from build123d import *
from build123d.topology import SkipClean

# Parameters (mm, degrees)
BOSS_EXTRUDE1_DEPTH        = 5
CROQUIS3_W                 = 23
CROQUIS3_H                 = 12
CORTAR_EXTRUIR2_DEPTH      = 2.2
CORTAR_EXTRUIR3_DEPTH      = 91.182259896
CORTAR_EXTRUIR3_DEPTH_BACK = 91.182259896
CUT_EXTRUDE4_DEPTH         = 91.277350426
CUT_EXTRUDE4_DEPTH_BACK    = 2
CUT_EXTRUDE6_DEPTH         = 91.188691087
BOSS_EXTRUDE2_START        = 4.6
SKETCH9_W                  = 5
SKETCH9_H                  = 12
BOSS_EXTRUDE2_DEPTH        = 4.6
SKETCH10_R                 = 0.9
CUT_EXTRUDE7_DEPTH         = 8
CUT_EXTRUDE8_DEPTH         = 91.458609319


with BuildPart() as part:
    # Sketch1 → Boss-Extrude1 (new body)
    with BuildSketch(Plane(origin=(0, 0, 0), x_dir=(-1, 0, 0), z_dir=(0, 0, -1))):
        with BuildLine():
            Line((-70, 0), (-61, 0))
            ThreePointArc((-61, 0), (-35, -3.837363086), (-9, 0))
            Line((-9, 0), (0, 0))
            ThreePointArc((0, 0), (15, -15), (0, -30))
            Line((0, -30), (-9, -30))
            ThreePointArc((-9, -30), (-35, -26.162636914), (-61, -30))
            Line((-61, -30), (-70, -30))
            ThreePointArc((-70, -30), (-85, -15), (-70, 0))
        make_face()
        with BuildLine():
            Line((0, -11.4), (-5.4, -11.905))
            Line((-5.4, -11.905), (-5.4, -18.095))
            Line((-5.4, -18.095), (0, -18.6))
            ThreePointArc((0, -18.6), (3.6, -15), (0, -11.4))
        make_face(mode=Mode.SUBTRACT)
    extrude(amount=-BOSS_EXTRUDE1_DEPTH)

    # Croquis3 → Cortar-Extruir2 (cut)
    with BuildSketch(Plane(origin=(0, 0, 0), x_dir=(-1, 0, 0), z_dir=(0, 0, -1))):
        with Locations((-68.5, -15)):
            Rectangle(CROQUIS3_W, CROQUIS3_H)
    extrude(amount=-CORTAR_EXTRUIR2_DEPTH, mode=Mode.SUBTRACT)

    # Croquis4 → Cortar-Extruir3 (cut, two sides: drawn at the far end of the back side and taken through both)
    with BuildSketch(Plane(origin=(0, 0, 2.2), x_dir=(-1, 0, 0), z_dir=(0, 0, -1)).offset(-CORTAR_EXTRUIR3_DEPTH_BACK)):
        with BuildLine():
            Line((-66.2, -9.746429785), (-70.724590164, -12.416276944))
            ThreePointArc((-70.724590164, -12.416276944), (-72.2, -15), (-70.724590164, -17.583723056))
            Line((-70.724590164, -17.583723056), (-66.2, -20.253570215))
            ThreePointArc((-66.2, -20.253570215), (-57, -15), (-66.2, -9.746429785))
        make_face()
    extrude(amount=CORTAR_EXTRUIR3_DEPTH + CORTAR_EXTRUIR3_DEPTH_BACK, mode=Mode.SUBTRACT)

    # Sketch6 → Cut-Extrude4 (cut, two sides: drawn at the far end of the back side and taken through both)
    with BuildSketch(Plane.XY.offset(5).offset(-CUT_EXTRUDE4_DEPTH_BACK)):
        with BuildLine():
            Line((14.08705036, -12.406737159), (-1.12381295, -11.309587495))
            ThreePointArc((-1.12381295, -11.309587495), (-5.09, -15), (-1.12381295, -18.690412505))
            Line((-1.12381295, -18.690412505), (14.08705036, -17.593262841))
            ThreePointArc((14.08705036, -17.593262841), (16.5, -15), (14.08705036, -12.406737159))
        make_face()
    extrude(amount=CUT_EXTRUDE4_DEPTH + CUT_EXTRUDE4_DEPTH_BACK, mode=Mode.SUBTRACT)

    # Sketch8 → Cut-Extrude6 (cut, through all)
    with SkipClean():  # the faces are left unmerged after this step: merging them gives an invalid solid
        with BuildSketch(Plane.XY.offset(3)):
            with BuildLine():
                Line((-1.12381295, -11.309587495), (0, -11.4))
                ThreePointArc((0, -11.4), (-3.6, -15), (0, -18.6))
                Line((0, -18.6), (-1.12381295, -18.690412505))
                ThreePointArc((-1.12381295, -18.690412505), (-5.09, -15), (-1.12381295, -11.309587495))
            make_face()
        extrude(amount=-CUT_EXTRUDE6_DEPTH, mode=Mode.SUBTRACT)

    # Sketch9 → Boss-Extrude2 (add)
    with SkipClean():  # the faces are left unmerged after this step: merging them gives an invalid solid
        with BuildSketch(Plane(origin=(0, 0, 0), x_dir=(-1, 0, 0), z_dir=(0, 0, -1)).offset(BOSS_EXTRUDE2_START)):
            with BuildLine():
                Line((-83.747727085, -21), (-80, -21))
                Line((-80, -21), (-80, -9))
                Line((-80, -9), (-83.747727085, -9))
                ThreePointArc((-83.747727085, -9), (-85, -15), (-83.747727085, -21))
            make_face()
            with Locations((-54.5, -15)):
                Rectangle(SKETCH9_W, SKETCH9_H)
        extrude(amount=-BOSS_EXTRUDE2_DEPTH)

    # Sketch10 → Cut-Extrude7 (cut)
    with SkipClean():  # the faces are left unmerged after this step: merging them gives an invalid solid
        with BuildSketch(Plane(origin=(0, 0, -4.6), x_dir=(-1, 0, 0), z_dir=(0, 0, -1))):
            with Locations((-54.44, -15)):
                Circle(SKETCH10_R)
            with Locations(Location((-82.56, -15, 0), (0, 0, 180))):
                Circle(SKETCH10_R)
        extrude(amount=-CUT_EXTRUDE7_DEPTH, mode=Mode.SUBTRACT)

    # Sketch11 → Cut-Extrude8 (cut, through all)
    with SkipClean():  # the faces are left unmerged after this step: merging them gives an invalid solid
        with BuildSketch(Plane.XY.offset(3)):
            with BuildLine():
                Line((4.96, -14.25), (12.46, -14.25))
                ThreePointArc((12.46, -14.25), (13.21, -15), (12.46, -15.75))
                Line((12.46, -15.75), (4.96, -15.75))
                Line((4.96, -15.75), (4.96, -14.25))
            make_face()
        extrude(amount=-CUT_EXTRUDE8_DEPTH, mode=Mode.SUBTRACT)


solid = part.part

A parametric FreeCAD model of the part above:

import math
import FreeCAD as App
import Part
import Sketcher
from FreeCAD import Vector
Q = App.Units.Quantity

doc = App.newDocument("Part")
body = doc.addObject("PartDesign::Body", "Body")

sketch1 = doc.addObject("Sketcher::SketchObject", "Sketch")
body.addObject(sketch1)
sketch1.AttachmentSupport = (doc.XY_Plane, [""])
sketch1.MapMode = "FlatFace"
sketch1.addGeometry(Part.LineSegment(Vector(61, 0, 0), Vector(70, 0, 0)), False)
sketch1.addGeometry(Part.ArcOfCircle(Part.Circle(Vector(70, -15, 0), Vector(0, 0, 1), 15), math.radians(-90), math.radians(90)), False)
sketch1.addGeometry(Part.LineSegment(Vector(70, -30, 0), Vector(61, -30, 0)), False)
sketch1.addGeometry(Part.ArcOfCircle(Part.Circle(Vector(35, -116.162637, 0), Vector(0, 0, 1), 90), math.radians(73.208553), math.radians(106.791447)), False)
sketch1.addGeometry(Part.LineSegment(Vector(9, -30, 0), Vector(0, -30, 0)), False)
sketch1.addGeometry(Part.ArcOfCircle(Part.Circle(Vector(0, -15, 0), Vector(0, 0, 1), 15), math.radians(90), math.radians(270)), False)
sketch1.addGeometry(Part.LineSegment(Vector(0, 0, 0), Vector(9, 0, 0)), False)
sketch1.addGeometry(Part.ArcOfCircle(Part.Circle(Vector(35, 86.162637, 0), Vector(0, 0, 1), 90), math.radians(-106.791447), math.radians(-73.208553)), False)
sketch1.addGeometry(Part.ArcOfCircle(Part.Circle(Vector(0, -15, 0), Vector(0, 0, 1), 3.6), math.radians(90), math.radians(270)), False)
sketch1.addGeometry(Part.LineSegment(Vector(0, -18.6, 0), Vector(5.4, -18.095, 0)), False)
sketch1.addGeometry(Part.LineSegment(Vector(5.4, -18.095, 0), Vector(5.4, -11.905, 0)), False)
sketch1.addGeometry(Part.LineSegment(Vector(5.4, -11.905, 0), Vector(0, -11.4, 0)), False)
sketch1.addConstraint(Sketcher.Constraint("Tangent", 0, 2, 1, 2))
sketch1.addConstraint(Sketcher.Constraint("Tangent", 1, 1, 2, 1))
sketch1.addConstraint(Sketcher.Constraint("Coincident", 2, 2, 3, 1))
sketch1.addConstraint(Sketcher.Constraint("Coincident", 3, 2, 4, 1))
sketch1.addConstraint(Sketcher.Constraint("Tangent", 4, 2, 5, 2))
sketch1.addConstraint(Sketcher.Constraint("Tangent", 5, 1, 6, 1))
sketch1.addConstraint(Sketcher.Constraint("Coincident", 6, 2, 7, 1))
sketch1.addConstraint(Sketcher.Constraint("Coincident", 7, 2, 0, 1))
sketch1.addConstraint(Sketcher.Constraint("Coincident", 8, 2, 9, 1))
sketch1.addConstraint(Sketcher.Constraint("Coincident", 9, 2, 10, 1))
sketch1.addConstraint(Sketcher.Constraint("Coincident", 10, 2, 11, 1))
sketch1.addConstraint(Sketcher.Constraint("Coincident", 11, 2, 8, 1))
sketch1.addConstraint(Sketcher.Constraint("Horizontal", 0))
sketch1.addConstraint(Sketcher.Constraint("Horizontal", 2))
sketch1.addConstraint(Sketcher.Constraint("Horizontal", 4))
sketch1.addConstraint(Sketcher.Constraint("Horizontal", 6))
sketch1.addConstraint(Sketcher.Constraint("Vertical", 10))
sketch1.addConstraint(Sketcher.Constraint("Coincident", 5, 1, -1, 1))
sketch1.addConstraint(Sketcher.Constraint("Coincident", 8, 3, 5, 3))
sketch1.addConstraint(Sketcher.Constraint("Equal", 1, 5))
sketch1.addConstraint(Sketcher.Constraint("Equal", 3, 7))
sketch1.addConstraint(Sketcher.Constraint("PointOnObject", 0, 2, -1))
sketch1.addConstraint(Sketcher.Constraint("PointOnObject", 8, 2, -2))
sketch1.addConstraint(Sketcher.Constraint("PointOnObject", 11, 2, -2))
sketch1.addConstraint(Sketcher.Constraint("Vertical", 3, 3, 7, 3))
sketch1.addConstraint(Sketcher.Constraint("Vertical", 3, 2, 6, 2))
sketch1.addConstraint(Sketcher.Constraint("Equal", 2, 4))
sketch1.addConstraint(Sketcher.Constraint("Equal", 9, 11))
sketch1.addConstraint(Sketcher.Constraint("Radius", 1, Q("15 mm")))
sketch1.addConstraint(Sketcher.Constraint("Radius", 3, Q("90 mm")))
sketch1.addConstraint(Sketcher.Constraint("Radius", 8, Q("3.6 mm")))
sketch1.addConstraint(Sketcher.Constraint("DistanceX", 0, 1, 0, 2, Q("9 mm")))
sketch1.addConstraint(Sketcher.Constraint("DistanceX", -1, 1, 1, 3, Q("70 mm")))
sketch1.addConstraint(Sketcher.Constraint("DistanceY", 10, 1, 10, 2, Q("6.19 mm")))
sketch1.addConstraint(Sketcher.Constraint("DistanceX", -1, 1, 9, 2, Q("5.4 mm")))
pad1 = doc.addObject("PartDesign::Pad", "Pad")
body.addObject(pad1)
pad1.Profile = sketch1
pad1.Length = 5

sketch2 = doc.addObject("Sketcher::SketchObject", "Sketch001")
body.addObject(sketch2)
sketch2.AttachmentSupport = (doc.XY_Plane, [""])
sketch2.MapMode = "FlatFace"
sketch2.addGeometry(Part.LineSegment(Vector(80, -9, 0), Vector(80, -21, 0)), False)
sketch2.addGeometry(Part.LineSegment(Vector(80, -21, 0), Vector(57, -21, 0)), False)
sketch2.addGeometry(Part.LineSegment(Vector(57, -21, 0), Vector(57, -9, 0)), False)
sketch2.addGeometry(Part.LineSegment(Vector(57, -9, 0), Vector(80, -9, 0)), False)
sketch2.addConstraint(Sketcher.Constraint("Coincident", 0, 2, 1, 1))
sketch2.addConstraint(Sketcher.Constraint("Coincident", 1, 2, 2, 1))
sketch2.addConstraint(Sketcher.Constraint("Coincident", 2, 2, 3, 1))
sketch2.addConstraint(Sketcher.Constraint("Coincident", 3, 2, 0, 1))
sketch2.addConstraint(Sketcher.Constraint("Vertical", 0))
sketch2.addConstraint(Sketcher.Constraint("Horizontal", 1))
sketch2.addConstraint(Sketcher.Constraint("Vertical", 2))
sketch2.addConstraint(Sketcher.Constraint("Horizontal", 3))
sketch2.addConstraint(Sketcher.Constraint("DistanceX", 1, 2, 1, 1, Q("23 mm")))
sketch2.addConstraint(Sketcher.Constraint("DistanceY", 0, 2, 0, 1, Q("12 mm")))
sketch2.addConstraint(Sketcher.Constraint("DistanceX", -1, 1, 0, 2, Q("80 mm")))
sketch2.addConstraint(Sketcher.Constraint("DistanceY", 0, 2, -1, 1, Q("21 mm")))
pocket1 = doc.addObject("PartDesign::Pocket", "Pocket")
body.addObject(pocket1)
pocket1.Profile = sketch2
pocket1.Length = 2.2
pocket1.Reversed = True

sketch3 = doc.addObject("Sketcher::SketchObject", "Sketch002")
body.addObject(sketch3)
sketch3.AttachmentSupport = (doc.XY_Plane, [""])
sketch3.MapMode = "FlatFace"
sketch3.AttachmentOffset = App.Placement(Vector(0, 0, 2.2), App.Rotation())
sketch3.addGeometry(Part.LineSegment(Vector(66.2, -9.74643, 0), Vector(70.72459, -12.416277, 0)), False)
sketch3.addGeometry(Part.ArcOfCircle(Part.Circle(Vector(69.2, -15, 0), Vector(0, 0, 1), 3), math.radians(-59.456211), math.radians(59.456211)), False)
sketch3.addGeometry(Part.LineSegment(Vector(70.72459, -17.583723, 0), Vector(66.2, -20.25357, 0)), False)
sketch3.addGeometry(Part.ArcOfCircle(Part.Circle(Vector(63.1, -15, 0), Vector(0, 0, 1), 6.1), math.radians(59.456211), math.radians(300.543789)), False)
sketch3.addConstraint(Sketcher.Constraint("Tangent", 0, 2, 1, 2))
sketch3.addConstraint(Sketcher.Constraint("Tangent", 1, 1, 2, 1))
sketch3.addConstraint(Sketcher.Constraint("Tangent", 2, 2, 3, 2))
sketch3.addConstraint(Sketcher.Constraint("Tangent", 3, 1, 0, 1))
sketch3.addConstraint(Sketcher.Constraint("Horizontal", 1, 3, 3, 3))
sketch3.addConstraint(Sketcher.Constraint("Radius", 1, Q("3 mm")))
sketch3.addConstraint(Sketcher.Constraint("Radius", 3, Q("6.1 mm")))
sketch3.addConstraint(Sketcher.Constraint("DistanceY", 1, 3, -1, 1, Q("15 mm")))
sketch3.addConstraint(Sketcher.Constraint("DistanceX", 2, 2, 1, 3, Q("3 mm")))
sketch3.addConstraint(Sketcher.Constraint("DistanceX", -1, 1, 1, 3, Q("69.2 mm")))
pocket2 = doc.addObject("PartDesign::Pocket", "Pocket001")
body.addObject(pocket2)
pocket2.Profile = sketch3
pocket2.Type = "ThroughAll"
pocket2.Midplane = True

sketch4 = doc.addObject("Sketcher::SketchObject", "Sketch003")
body.addObject(sketch4)
sketch4.AttachmentSupport = (doc.XY_Plane, [""])
sketch4.MapMode = "FlatFace"
sketch4.AttachmentOffset = App.Placement(Vector(0, 0, 5), App.Rotation())
sketch4.addGeometry(Part.LineSegment(Vector(14.08705, -12.406737, 0), Vector(-1.123813, -11.309587, 0)), False)
sketch4.addGeometry(Part.ArcOfCircle(Part.Circle(Vector(-1.39, -15, 0), Vector(0, 0, 1), 3.7), math.radians(85.874437), math.radians(274.125563)), False)
sketch4.addGeometry(Part.LineSegment(Vector(-1.123813, -18.690413, 0), Vector(14.08705, -17.593263, 0)), False)
sketch4.addGeometry(Part.ArcOfCircle(Part.Circle(Vector(13.9, -15, 0), Vector(0, 0, 1), 2.6), math.radians(-85.874437), math.radians(85.874437)), False)
sketch4.addConstraint(Sketcher.Constraint("Tangent", 0, 2, 1, 1))
sketch4.addConstraint(Sketcher.Constraint("Tangent", 1, 2, 2, 1))
sketch4.addConstraint(Sketcher.Constraint("Tangent", 2, 2, 3, 1))
sketch4.addConstraint(Sketcher.Constraint("Tangent", 3, 2, 0, 1))
sketch4.addConstraint(Sketcher.Constraint("Horizontal", 1, 3, 3, 3))
sketch4.addConstraint(Sketcher.Constraint("Radius", 1, Q("3.7 mm")))
sketch4.addConstraint(Sketcher.Constraint("Radius", 3, Q("2.6 mm")))
sketch4.addConstraint(Sketcher.Constraint("DistanceY", 1, 3, -1, 1, Q("15 mm")))
sketch4.addConstraint(Sketcher.Constraint("DistanceX", -1, 1, 3, 3, Q("13.9 mm")))
sketch4.addConstraint(Sketcher.Constraint("DistanceX", 1, 3, -1, 1, Q("1.39 mm")))
pocket3 = doc.addObject("PartDesign::Pocket", "Pocket002")
body.addObject(pocket3)
pocket3.Profile = sketch4
pocket3.Type = "TwoLengths"
pocket3.Length = 91.27735
pocket3.Length2 = 2
pocket3.Reversed = True

sketch5 = doc.addObject("Sketcher::SketchObject", "Sketch004")
body.addObject(sketch5)
sketch5.AttachmentSupport = (doc.XY_Plane, [""])
sketch5.MapMode = "FlatFace"
sketch5.AttachmentOffset = App.Placement(Vector(0, 0, 3), App.Rotation())
sketch5.addGeometry(Part.LineSegment(Vector(0, -11.4, 0), Vector(-1.123813, -11.309587, 0)), False)
sketch5.addGeometry(Part.ArcOfCircle(Part.Circle(Vector(-1.39, -15, 0), Vector(0, 0, 1), 3.7), math.radians(85.874437), math.radians(274.125563)), False)
sketch5.addGeometry(Part.LineSegment(Vector(-1.123813, -18.690413, 0), Vector(0, -18.6, 0)), False)
sketch5.addGeometry(Part.ArcOfCircle(Part.Circle(Vector(0, -15, 0), Vector(0, 0, 1), 3.6), math.radians(90), math.radians(270)), False)
sketch5.addConstraint(Sketcher.Constraint("Coincident", 0, 2, 1, 1))
sketch5.addConstraint(Sketcher.Constraint("Coincident", 1, 2, 2, 1))
sketch5.addConstraint(Sketcher.Constraint("Coincident", 2, 2, 3, 2))
sketch5.addConstraint(Sketcher.Constraint("Coincident", 3, 1, 0, 1))
sketch5.addConstraint(Sketcher.Constraint("PointOnObject", 3, 3, -2))
sketch5.addConstraint(Sketcher.Constraint("PointOnObject", 2, 2, -2))
sketch5.addConstraint(Sketcher.Constraint("PointOnObject", 3, 1, -2))
sketch5.addConstraint(Sketcher.Constraint("Horizontal", 1, 3, 3, 3))
sketch5.addConstraint(Sketcher.Constraint("Vertical", 0, 2, 1, 2))
sketch5.addConstraint(Sketcher.Constraint("Radius", 1, Q("3.7 mm")))
sketch5.addConstraint(Sketcher.Constraint("Radius", 3, Q("3.6 mm")))
sketch5.addConstraint(Sketcher.Constraint("DistanceY", 1, 3, -1, 1, Q("15 mm")))
sketch5.addConstraint(Sketcher.Constraint("DistanceX", 1, 3, -1, 1, Q("1.39 mm")))
sketch5.addConstraint(Sketcher.Constraint("Distance", 0, Q("1.127444 mm")))
pocket4 = doc.addObject("PartDesign::Pocket", "Pocket003")
body.addObject(pocket4)
pocket4.Profile = sketch5
pocket4.Type = "ThroughAll"

sketch6 = doc.addObject("Sketcher::SketchObject", "Sketch005")
body.addObject(sketch6)
sketch6.AttachmentSupport = (doc.XY_Plane, [""])
sketch6.MapMode = "FlatFace"
sketch6.AttachmentOffset = App.Placement(Vector(0, 0, -4.6), App.Rotation())
sketch6.addGeometry(Part.LineSegment(Vector(83.747727, -21, 0), Vector(80, -21, 0)), False)
sketch6.addGeometry(Part.LineSegment(Vector(80, -21, 0), Vector(80, -9, 0)), False)
sketch6.addGeometry(Part.LineSegment(Vector(80, -9, 0), Vector(83.747727, -9, 0)), False)
sketch6.addGeometry(Part.ArcOfCircle(Part.Circle(Vector(70, -15, 0), Vector(0, 0, 1), 15), math.radians(-23.578178), math.radians(23.578178)), False)
sketch6.addGeometry(Part.LineSegment(Vector(57, -9, 0), Vector(57, -21, 0)), False)
sketch6.addGeometry(Part.LineSegment(Vector(57, -21, 0), Vector(52, -21, 0)), False)
sketch6.addGeometry(Part.LineSegment(Vector(52, -21, 0), Vector(52, -9, 0)), False)
sketch6.addGeometry(Part.LineSegment(Vector(52, -9, 0), Vector(57, -9, 0)), False)
sketch6.addConstraint(Sketcher.Constraint("Coincident", 0, 2, 1, 1))
sketch6.addConstraint(Sketcher.Constraint("Coincident", 1, 2, 2, 1))
sketch6.addConstraint(Sketcher.Constraint("Coincident", 2, 2, 3, 2))
sketch6.addConstraint(Sketcher.Constraint("Coincident", 3, 1, 0, 1))
sketch6.addConstraint(Sketcher.Constraint("Coincident", 4, 2, 5, 1))
sketch6.addConstraint(Sketcher.Constraint("Coincident", 5, 2, 6, 1))
sketch6.addConstraint(Sketcher.Constraint("Coincident", 6, 2, 7, 1))
sketch6.addConstraint(Sketcher.Constraint("Coincident", 7, 2, 4, 1))
sketch6.addConstraint(Sketcher.Constraint("Horizontal", 0))
sketch6.addConstraint(Sketcher.Constraint("Vertical", 1))
sketch6.addConstraint(Sketcher.Constraint("Horizontal", 2))
sketch6.addConstraint(Sketcher.Constraint("Vertical", 4))
sketch6.addConstraint(Sketcher.Constraint("Horizontal", 5))
sketch6.addConstraint(Sketcher.Constraint("Vertical", 6))
sketch6.addConstraint(Sketcher.Constraint("Horizontal", 7))
sketch6.addConstraint(Sketcher.Constraint("Horizontal", 3, 1, 4, 2))
sketch6.addConstraint(Sketcher.Constraint("Horizontal", 2, 2, 6, 2))
sketch6.addConstraint(Sketcher.Constraint("Vertical", 2, 2, 3, 1))
sketch6.addConstraint(Sketcher.Constraint("Radius", 3, Q("15 mm")))
sketch6.addConstraint(Sketcher.Constraint("DistanceX", 5, 2, 5, 1, Q("5 mm")))
sketch6.addConstraint(Sketcher.Constraint("DistanceY", 1, 1, 1, 2, Q("12 mm")))
sketch6.addConstraint(Sketcher.Constraint("DistanceX", -1, 1, 3, 3, Q("70 mm")))
sketch6.addConstraint(Sketcher.Constraint("DistanceY", 3, 3, -1, 1, Q("15 mm")))
sketch6.addConstraint(Sketcher.Constraint("DistanceX", -1, 1, 0, 2, Q("80 mm")))
sketch6.addConstraint(Sketcher.Constraint("DistanceX", -1, 1, 4, 2, Q("57 mm")))
pad2 = doc.addObject("PartDesign::Pad", "Pad001")
body.addObject(pad2)
pad2.Profile = sketch6
pad2.Length = 4.6

sketch7 = doc.addObject("Sketcher::SketchObject", "Sketch006")
body.addObject(sketch7)
sketch7.AttachmentSupport = (doc.XY_Plane, [""])
sketch7.MapMode = "FlatFace"
sketch7.AttachmentOffset = App.Placement(Vector(0, 0, -4.6), App.Rotation())
sketch7.addGeometry(Part.Circle(Vector(54.44, -15, 0), Vector(0, 0, 1), 0.9), False)
sketch7.addGeometry(Part.Circle(Vector(82.56, -15, 0), Vector(0, 0, 1), 0.9), False)
sketch7.addConstraint(Sketcher.Constraint("Equal", 0, 1))
sketch7.addConstraint(Sketcher.Constraint("Horizontal", 0, 3, 1, 3))
sketch7.addConstraint(Sketcher.Constraint("Diameter", 0, Q("1.8 mm")))
sketch7.addConstraint(Sketcher.Constraint("DistanceY", 0, 3, -1, 1, Q("15 mm")))
sketch7.addConstraint(Sketcher.Constraint("DistanceX", -1, 1, 0, 3, Q("54.44 mm")))
sketch7.addConstraint(Sketcher.Constraint("DistanceX", -1, 1, 1, 3, Q("82.56 mm")))
pocket5 = doc.addObject("PartDesign::Pocket", "Pocket004")
body.addObject(pocket5)
pocket5.Profile = sketch7
pocket5.Length = 8
pocket5.Reversed = True

sketch8 = doc.addObject("Sketcher::SketchObject", "Sketch007")
body.addObject(sketch8)
sketch8.AttachmentSupport = (doc.XY_Plane, [""])
sketch8.MapMode = "FlatFace"
sketch8.AttachmentOffset = App.Placement(Vector(0, 0, 3), App.Rotation())
sketch8.addGeometry(Part.LineSegment(Vector(12.46, -14.25, 0), Vector(4.96, -14.25, 0)), False)
sketch8.addGeometry(Part.LineSegment(Vector(4.96, -14.25, 0), Vector(4.96, -15.75, 0)), False)
sketch8.addGeometry(Part.LineSegment(Vector(4.96, -15.75, 0), Vector(12.46, -15.75, 0)), False)
sketch8.addGeometry(Part.ArcOfCircle(Part.Circle(Vector(12.46, -15, 0), Vector(0, 0, 1), 0.75), math.radians(-90), math.radians(90)), False)
sketch8.addConstraint(Sketcher.Constraint("Coincident", 0, 2, 1, 1))
sketch8.addConstraint(Sketcher.Constraint("Coincident", 1, 2, 2, 1))
sketch8.addConstraint(Sketcher.Constraint("Tangent", 2, 2, 3, 1))
sketch8.addConstraint(Sketcher.Constraint("Tangent", 3, 2, 0, 1))
sketch8.addConstraint(Sketcher.Constraint("Horizontal", 0))
sketch8.addConstraint(Sketcher.Constraint("Vertical", 1))
sketch8.addConstraint(Sketcher.Constraint("Horizontal", 2))
sketch8.addConstraint(Sketcher.Constraint("Radius", 3, Q("0.75 mm")))
sketch8.addConstraint(Sketcher.Constraint("DistanceX", 0, 2, 0, 1, Q("7.5 mm")))
sketch8.addConstraint(Sketcher.Constraint("DistanceY", 3, 3, -1, 1, Q("15 mm")))
sketch8.addConstraint(Sketcher.Constraint("DistanceX", -1, 1, 3, 3, Q("12.46 mm")))
pocket6 = doc.addObject("PartDesign::Pocket", "Pocket005")
body.addObject(pocket6)
pocket6.Profile = sketch8
pocket6.Type = "ThroughAll"

doc.recompute()
